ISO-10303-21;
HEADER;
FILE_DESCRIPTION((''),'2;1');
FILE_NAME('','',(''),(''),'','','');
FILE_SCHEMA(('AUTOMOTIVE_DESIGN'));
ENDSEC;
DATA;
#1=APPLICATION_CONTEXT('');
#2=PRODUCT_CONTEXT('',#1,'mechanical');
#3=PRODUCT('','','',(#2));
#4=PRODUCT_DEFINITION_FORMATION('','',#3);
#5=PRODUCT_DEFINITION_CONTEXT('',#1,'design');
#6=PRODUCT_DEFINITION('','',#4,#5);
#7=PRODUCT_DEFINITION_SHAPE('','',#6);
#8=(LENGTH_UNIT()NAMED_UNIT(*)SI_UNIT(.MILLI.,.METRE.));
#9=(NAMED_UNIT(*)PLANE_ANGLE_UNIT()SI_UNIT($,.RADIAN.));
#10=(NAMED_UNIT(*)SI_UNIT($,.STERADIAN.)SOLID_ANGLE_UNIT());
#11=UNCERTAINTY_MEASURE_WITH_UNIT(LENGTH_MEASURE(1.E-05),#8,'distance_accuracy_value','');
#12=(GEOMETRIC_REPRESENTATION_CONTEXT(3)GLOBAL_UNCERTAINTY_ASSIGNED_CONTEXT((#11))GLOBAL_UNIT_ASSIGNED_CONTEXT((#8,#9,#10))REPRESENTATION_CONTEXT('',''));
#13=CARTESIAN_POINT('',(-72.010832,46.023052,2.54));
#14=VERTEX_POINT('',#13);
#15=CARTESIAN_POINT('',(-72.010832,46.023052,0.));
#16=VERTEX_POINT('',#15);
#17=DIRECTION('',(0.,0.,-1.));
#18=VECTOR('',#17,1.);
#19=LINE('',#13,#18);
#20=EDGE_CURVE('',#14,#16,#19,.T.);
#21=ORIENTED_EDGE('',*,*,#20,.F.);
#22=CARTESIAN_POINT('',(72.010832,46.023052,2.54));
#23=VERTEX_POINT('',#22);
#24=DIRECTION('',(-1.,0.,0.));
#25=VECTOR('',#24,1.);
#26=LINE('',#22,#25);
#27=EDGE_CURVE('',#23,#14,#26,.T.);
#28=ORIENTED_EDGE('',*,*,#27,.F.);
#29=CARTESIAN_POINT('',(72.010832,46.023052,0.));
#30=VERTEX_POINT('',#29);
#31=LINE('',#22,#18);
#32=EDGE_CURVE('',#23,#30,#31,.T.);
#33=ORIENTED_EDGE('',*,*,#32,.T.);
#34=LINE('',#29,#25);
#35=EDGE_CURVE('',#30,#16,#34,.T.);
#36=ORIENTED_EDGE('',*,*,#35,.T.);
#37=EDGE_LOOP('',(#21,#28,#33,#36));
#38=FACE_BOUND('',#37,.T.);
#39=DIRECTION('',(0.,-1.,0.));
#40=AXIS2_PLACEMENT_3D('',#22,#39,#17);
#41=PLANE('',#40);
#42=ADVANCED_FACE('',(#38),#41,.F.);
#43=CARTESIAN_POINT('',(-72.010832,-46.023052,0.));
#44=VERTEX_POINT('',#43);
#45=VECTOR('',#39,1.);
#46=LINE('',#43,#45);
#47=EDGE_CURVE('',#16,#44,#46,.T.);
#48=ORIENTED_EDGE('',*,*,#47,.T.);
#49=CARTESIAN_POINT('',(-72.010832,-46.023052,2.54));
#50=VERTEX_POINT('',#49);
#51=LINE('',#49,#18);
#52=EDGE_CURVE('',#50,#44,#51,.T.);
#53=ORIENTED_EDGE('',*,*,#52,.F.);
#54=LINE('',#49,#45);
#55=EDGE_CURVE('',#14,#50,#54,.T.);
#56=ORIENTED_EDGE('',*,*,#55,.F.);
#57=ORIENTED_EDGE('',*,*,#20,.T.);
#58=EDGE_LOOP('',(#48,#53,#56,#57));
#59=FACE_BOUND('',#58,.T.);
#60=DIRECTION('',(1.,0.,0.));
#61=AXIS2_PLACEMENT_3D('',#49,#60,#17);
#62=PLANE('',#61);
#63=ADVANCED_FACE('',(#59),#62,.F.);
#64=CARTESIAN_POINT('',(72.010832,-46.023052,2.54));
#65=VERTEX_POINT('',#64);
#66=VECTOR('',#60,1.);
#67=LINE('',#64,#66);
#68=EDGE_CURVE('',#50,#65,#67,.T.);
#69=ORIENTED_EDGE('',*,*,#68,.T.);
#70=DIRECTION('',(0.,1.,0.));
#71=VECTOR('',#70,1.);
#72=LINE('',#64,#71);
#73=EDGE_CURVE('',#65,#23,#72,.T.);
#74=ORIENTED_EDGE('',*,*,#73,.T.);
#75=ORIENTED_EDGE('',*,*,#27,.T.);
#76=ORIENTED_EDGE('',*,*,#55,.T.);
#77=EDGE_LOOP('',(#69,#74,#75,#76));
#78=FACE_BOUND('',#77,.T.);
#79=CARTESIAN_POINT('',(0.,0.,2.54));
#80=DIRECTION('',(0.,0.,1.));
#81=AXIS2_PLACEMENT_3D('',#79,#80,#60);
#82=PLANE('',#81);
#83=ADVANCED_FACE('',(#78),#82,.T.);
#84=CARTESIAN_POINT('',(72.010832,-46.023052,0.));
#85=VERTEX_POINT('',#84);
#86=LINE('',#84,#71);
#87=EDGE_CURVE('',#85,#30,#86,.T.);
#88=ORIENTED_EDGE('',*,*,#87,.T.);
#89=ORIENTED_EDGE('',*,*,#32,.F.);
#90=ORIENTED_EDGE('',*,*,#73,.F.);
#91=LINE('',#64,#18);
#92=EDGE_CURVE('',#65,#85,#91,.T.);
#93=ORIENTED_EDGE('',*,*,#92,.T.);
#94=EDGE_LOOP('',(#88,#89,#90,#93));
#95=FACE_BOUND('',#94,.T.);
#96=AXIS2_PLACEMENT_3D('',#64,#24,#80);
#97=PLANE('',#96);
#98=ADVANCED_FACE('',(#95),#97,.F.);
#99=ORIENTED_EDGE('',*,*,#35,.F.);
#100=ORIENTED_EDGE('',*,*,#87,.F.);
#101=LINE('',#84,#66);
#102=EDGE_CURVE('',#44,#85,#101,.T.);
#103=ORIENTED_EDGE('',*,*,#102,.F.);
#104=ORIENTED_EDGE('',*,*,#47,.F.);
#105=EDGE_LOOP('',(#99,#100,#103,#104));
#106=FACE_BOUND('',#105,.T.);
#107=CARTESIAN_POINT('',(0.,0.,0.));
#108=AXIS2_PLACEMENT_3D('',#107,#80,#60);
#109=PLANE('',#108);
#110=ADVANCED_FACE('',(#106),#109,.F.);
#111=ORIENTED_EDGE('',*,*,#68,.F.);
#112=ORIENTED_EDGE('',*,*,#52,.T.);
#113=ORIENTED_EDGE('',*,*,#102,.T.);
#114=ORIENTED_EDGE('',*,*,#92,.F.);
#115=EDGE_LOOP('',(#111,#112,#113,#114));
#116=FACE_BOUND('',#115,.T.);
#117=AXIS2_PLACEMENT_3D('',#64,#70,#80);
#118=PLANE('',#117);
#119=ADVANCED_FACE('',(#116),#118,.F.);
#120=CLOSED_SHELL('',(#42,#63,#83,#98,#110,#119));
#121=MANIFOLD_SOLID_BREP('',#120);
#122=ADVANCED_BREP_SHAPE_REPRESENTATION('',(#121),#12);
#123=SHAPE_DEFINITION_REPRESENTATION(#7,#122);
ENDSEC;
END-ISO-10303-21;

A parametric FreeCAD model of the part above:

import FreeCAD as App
import Part
import Sketcher
from FreeCAD import Vector
Q = App.Units.Quantity


def add_polygon(sketch, points):
    """Adds a closed chain of lines whose ends are joined by coincident constraints."""
    first, n = sketch.GeometryCount, len(points)
    for a, b in zip(points, points[1:] + points[:1]):
        sketch.addGeometry(Part.LineSegment(App.Vector(*a, 0), App.Vector(*b, 0)), False)
    for i in range(n):
        sketch.addConstraint(Sketcher.Constraint("Coincident", first + i, 2, first + (i + 1) % n, 1))

doc = App.newDocument("Part")
body = doc.addObject("PartDesign::Body", "Body")

sketch1 = body.newObject("Sketcher::SketchObject", "Sketch")
sketch1.AttachmentSupport = (doc.getObject("XY_Plane"), [""])
sketch1.MapMode = "FlatFace"
add_polygon(sketch1, [(-72, 46), (-72, -46), (72, -46), (72, 46)])
sketch1.addConstraint([
    Sketcher.Constraint("Vertical", 0),
    Sketcher.Constraint("Horizontal", 1),
    Sketcher.Constraint("Vertical", 2),
    Sketcher.Constraint("Horizontal", 3),
    Sketcher.Constraint("Symmetric", 0, 2, 2, 2, -1, 1),
    Sketcher.Constraint("DistanceX", 1, 1, 1, 2, Q("144.021665 mm")),
    Sketcher.Constraint("DistanceY", 0, 2, 0, 1, Q("92.046104 mm")),
])
pad1 = body.newObject("PartDesign::Pad", "Pad")
pad1.Profile = sketch1
pad1.Length = Q("0.1 in")

doc.recompute()
